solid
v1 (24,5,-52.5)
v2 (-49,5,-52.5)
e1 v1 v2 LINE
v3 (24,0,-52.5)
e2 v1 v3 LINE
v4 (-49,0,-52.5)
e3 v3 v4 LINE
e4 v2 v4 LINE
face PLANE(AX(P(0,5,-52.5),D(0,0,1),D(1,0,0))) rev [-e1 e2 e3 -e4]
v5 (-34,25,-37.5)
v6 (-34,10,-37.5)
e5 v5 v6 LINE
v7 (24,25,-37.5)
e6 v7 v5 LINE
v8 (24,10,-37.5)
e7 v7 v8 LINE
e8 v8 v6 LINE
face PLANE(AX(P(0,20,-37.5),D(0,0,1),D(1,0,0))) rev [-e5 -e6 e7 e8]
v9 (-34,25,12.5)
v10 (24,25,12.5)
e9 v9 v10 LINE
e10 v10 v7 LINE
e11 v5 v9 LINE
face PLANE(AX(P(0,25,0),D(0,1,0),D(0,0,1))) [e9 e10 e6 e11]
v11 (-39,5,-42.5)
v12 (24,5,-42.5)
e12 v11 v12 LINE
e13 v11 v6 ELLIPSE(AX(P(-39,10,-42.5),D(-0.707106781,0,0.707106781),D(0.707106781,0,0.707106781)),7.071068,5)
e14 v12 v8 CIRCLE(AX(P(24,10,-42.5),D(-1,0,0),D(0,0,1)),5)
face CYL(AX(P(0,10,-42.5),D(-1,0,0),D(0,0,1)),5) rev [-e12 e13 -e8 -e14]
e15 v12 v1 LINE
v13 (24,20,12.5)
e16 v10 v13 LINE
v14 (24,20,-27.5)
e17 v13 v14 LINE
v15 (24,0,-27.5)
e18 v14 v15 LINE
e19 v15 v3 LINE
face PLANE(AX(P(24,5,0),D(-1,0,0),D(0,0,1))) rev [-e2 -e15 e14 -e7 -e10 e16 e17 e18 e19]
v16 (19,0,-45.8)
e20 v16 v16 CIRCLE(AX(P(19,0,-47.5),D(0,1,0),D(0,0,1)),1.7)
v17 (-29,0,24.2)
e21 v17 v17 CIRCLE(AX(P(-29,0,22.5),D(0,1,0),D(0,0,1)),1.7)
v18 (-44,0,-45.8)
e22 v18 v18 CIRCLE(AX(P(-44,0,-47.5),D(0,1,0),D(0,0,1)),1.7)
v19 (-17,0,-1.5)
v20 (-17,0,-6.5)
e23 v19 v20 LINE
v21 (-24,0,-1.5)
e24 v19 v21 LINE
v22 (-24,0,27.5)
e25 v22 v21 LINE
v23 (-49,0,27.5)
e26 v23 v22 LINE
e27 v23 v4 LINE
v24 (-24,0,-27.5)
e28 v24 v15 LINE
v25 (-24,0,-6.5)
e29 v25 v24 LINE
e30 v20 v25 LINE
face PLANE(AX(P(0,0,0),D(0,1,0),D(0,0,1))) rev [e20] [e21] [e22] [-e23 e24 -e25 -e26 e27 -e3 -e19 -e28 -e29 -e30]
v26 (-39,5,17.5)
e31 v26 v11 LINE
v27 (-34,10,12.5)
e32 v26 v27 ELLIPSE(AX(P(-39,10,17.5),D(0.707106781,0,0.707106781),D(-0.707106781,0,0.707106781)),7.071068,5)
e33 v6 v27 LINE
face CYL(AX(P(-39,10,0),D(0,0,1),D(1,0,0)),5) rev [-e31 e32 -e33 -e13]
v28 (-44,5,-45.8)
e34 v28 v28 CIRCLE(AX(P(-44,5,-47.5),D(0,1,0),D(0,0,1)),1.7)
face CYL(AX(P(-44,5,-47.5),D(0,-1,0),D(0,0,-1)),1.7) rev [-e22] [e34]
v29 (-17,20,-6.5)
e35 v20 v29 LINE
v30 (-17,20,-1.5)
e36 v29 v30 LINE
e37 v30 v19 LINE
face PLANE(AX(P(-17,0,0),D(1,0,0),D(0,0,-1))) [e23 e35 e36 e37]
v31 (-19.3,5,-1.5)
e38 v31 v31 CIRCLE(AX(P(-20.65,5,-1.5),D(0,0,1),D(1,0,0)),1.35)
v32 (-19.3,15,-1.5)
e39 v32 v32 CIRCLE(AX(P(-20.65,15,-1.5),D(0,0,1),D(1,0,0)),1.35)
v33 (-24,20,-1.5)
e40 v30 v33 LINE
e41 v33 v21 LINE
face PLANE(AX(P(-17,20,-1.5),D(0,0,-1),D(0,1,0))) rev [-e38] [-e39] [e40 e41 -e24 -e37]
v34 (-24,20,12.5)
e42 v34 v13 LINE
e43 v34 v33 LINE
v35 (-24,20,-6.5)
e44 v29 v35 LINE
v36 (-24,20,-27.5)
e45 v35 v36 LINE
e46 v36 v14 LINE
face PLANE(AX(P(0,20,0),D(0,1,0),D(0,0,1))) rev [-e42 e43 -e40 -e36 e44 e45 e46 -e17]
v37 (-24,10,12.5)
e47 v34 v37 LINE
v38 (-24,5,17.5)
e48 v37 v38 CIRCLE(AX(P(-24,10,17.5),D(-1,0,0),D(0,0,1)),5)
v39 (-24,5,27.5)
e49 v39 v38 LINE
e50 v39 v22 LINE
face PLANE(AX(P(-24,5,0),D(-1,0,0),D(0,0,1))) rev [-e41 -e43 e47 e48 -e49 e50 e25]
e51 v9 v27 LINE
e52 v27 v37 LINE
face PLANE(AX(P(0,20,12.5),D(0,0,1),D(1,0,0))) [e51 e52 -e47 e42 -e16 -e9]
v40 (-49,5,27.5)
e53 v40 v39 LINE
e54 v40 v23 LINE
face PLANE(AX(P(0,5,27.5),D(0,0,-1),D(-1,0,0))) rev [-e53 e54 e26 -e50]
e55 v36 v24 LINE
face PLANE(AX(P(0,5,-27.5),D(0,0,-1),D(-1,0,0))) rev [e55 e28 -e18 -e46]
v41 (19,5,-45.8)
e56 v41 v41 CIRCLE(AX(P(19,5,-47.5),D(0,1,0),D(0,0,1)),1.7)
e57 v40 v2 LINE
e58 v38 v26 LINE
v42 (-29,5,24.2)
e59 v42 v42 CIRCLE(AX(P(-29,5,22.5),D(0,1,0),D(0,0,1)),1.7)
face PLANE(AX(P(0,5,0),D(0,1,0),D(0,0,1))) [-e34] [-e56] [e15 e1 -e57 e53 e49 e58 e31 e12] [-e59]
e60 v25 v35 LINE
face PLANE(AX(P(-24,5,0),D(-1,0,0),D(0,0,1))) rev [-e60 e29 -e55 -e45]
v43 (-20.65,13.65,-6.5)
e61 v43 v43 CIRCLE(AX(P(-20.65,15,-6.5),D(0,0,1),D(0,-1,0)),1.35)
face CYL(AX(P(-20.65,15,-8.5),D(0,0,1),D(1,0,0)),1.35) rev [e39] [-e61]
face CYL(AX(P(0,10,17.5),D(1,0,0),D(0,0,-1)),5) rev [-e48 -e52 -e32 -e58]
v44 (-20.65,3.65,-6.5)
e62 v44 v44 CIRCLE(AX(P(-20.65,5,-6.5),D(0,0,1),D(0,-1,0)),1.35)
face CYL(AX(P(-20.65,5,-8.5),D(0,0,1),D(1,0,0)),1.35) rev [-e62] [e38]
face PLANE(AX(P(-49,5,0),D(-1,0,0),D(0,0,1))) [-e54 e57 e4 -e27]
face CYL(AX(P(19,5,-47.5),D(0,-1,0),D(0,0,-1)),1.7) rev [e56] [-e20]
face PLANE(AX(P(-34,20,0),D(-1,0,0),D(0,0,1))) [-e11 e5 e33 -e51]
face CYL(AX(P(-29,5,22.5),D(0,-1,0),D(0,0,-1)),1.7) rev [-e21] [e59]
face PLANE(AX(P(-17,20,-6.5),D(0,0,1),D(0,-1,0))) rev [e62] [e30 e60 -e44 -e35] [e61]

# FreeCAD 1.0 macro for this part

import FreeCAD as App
import Part
import Sketcher
from FreeCAD import Vector
Q = App.Units.Quantity


def edges_at(feature, points):
    """Names of the edges that pass closest to the given points."""
    edges = feature.Shape.Edges
    near = lambda p: min(range(len(edges)), key=lambda i: edges[i].distToShape(Part.Vertex(*p))[0])
    return sorted({f"Edge{near(p) + 1}" for p in points})


def add_polygon(sketch, points):
    """Adds a closed chain of lines whose ends are joined by coincident constraints."""
    first, n = sketch.GeometryCount, len(points)
    for a, b in zip(points, points[1:] + points[:1]):
        sketch.addGeometry(Part.LineSegment(App.Vector(*a, 0), App.Vector(*b, 0)), False)
    for i in range(n):
        sketch.addConstraint(Sketcher.Constraint("Coincident", first + i, 2, first + (i + 1) % n, 1))

doc = App.newDocument("Part")
params = doc.addObject("Spreadsheet::Sheet", "Params")
for row, (alias, value) in enumerate([
    ("sketch1_diameter", "3.4 mm"),
    ("sketch1_width", "25 mm"),
    ("sketch1_width2", "48 mm"),
    ("sketch1_height", "55 mm"),
    ("pad1_length", "5 mm"),
    ("sketch2_width", "58 mm"),
    ("sketch2_width2", "10 mm"),
    ("sketch2_height", "50 mm"),
    ("pad2_length", "15 mm"),
    ("sketch3_width", "58 mm"),
    ("sketch3_height", "50 mm"),
    ("pad3_length", "5 mm"),
    ("sketch4_width", "20 mm"),
    ("sketch4_height", "5 mm"),
    ("pad4_length", "7 mm"),
    ("sketch5_diameter", "2.7 mm"),
    ("pocket1_length", "7 mm"),
    ("fillet_radius", "5 mm"),
], start=1):
    params.set(f"A{row}", alias)
    params.set(f"B{row}", "=" + value)
    params.setAlias(f"B{row}", alias)

body = doc.addObject("PartDesign::Body", "Body")

sketch1 = doc.addObject("Sketcher::SketchObject", "Sketch")
body.addObject(sketch1)
sketch1.AttachmentSupport = (doc.XZ_Plane, [""])
sketch1.MapMode = "FlatFace"
add_polygon(sketch1, [(-49, 27.5), (-24, 27.5), (-24, -27.5), (24, -27.5), (24, -52.5), (-49, -52.5)])
sketch1.addGeometry(Part.Circle(Vector(-29, 22.5, 0), Vector(0, 0, 1), 1.7), False)
sketch1.addGeometry(Part.Circle(Vector(-44, -47.5, 0), Vector(0, 0, 1), 1.7), False)
sketch1.addGeometry(Part.Circle(Vector(19, -47.5, 0), Vector(0, 0, 1), 1.7), False)
sketch1.addConstraint(Sketcher.Constraint("Horizontal", 0))
sketch1.addConstraint(Sketcher.Constraint("Vertical", 1))
sketch1.addConstraint(Sketcher.Constraint("Horizontal", 2))
sketch1.addConstraint(Sketcher.Constraint("Vertical", 3))
sketch1.addConstraint(Sketcher.Constraint("Horizontal", 4))
sketch1.addConstraint(Sketcher.Constraint("Vertical", 5))
sketch1.addConstraint(Sketcher.Constraint("Equal", 6, 7))
sketch1.addConstraint(Sketcher.Constraint("Equal", 7, 8))
sketch1.addConstraint(Sketcher.Constraint("Symmetric", 0, 2, 2, 2, -1, 1))
sketch1.addConstraint(Sketcher.Constraint("Horizontal", 7, 3, 8, 3))
sketch1.addConstraint(Sketcher.Constraint("Equal", 0, 3))
sketch1.addConstraint(Sketcher.Constraint("Diameter", 6, Q("3.4 mm")))
sketch1.addConstraint(Sketcher.Constraint("DistanceX", 0, 1, 0, 2, Q("25 mm")))
sketch1.addConstraint(Sketcher.Constraint("DistanceX", 2, 1, 2, 2, Q("48 mm")))
sketch1.addConstraint(Sketcher.Constraint("DistanceY", 1, 2, 1, 1, Q("55 mm")))
sketch1.addConstraint(Sketcher.Constraint("DistanceX", 6, 3, -1, 1, Q("29 mm")))
sketch1.addConstraint(Sketcher.Constraint("DistanceX", 7, 3, -1, 1, Q("44 mm")))
sketch1.addConstraint(Sketcher.Constraint("DistanceX", -1, 1, 8, 3, Q("19 mm")))
sketch1.addConstraint(Sketcher.Constraint("DistanceY", 7, 3, 6, 3, Q("70 mm")))
sketch1.addConstraint(Sketcher.Constraint("DistanceY", 6, 3, 0, 2, Q("5 mm")))
sketch1.setExpression("Constraints[17]", "Params.sketch1_diameter")
sketch1.setExpression("Constraints[18]", "Params.sketch1_width")
sketch1.setExpression("Constraints[19]", "Params.sketch1_width2")
sketch1.setExpression("Constraints[20]", "Params.sketch1_height")
pad1 = doc.addObject("PartDesign::Pad", "Pad")
body.addObject(pad1)
pad1.Profile = sketch1
pad1.setExpression("Length", "Params.pad1_length")
pad1.Reversed = True

sketch2 = doc.addObject("Sketcher::SketchObject", "Sketch001")
body.addObject(sketch2)
sketch2.AttachmentSupport = (doc.XZ_Plane, [""])
sketch2.MapMode = "FlatFace"
sketch2.AttachmentOffset = App.Placement(Vector(0, 0, -5), App.Rotation())
add_polygon(sketch2, [(24, -28), (24, -38), (-34, -38), (-34, 12), (-24, 12), (-24, -28)])
sketch2.addConstraint(Sketcher.Constraint("Vertical", 0))
sketch2.addConstraint(Sketcher.Constraint("Horizontal", 1))
sketch2.addConstraint(Sketcher.Constraint("Vertical", 2))
sketch2.addConstraint(Sketcher.Constraint("Horizontal", 3))
sketch2.addConstraint(Sketcher.Constraint("Vertical", 4))
sketch2.addConstraint(Sketcher.Constraint("Horizontal", 5))
sketch2.addConstraint(Sketcher.Constraint("Equal", 3, 0))
sketch2.addConstraint(Sketcher.Constraint("DistanceX", 1, 2, 1, 1, Q("58 mm")))
sketch2.addConstraint(Sketcher.Constraint("DistanceX", 3, 1, 3, 2, Q("10 mm")))
sketch2.addConstraint(Sketcher.Constraint("DistanceY", 2, 1, 2, 2, Q("50 mm")))
sketch2.addConstraint(Sketcher.Constraint("DistanceX", -1, 1, 0, 2, Q("24 mm")))
sketch2.addConstraint(Sketcher.Constraint("DistanceY", 0, 2, -1, 1, Q("37.5 mm")))
sketch2.setExpression("Constraints[13]", "Params.sketch2_width")
sketch2.setExpression("Constraints[14]", "Params.sketch2_width2")
sketch2.setExpression("Constraints[15]", "Params.sketch2_height")
pad2 = doc.addObject("PartDesign::Pad", "Pad001")
body.addObject(pad2)
pad2.Profile = sketch2
pad2.setExpression("Length", "Params.pad2_length")
pad2.Reversed = True

sketch3 = doc.addObject("Sketcher::SketchObject", "Sketch002")
body.addObject(sketch3)
sketch3.AttachmentSupport = (doc.XZ_Plane, [""])
sketch3.MapMode = "FlatFace"
sketch3.AttachmentOffset = App.Placement(Vector(0, 0, -20), App.Rotation())
add_polygon(sketch3, [(-34, -38), (-34, 12), (24, 12), (24, -38)])
sketch3.addConstraint(Sketcher.Constraint("Vertical", 0))
sketch3.addConstraint(Sketcher.Constraint("Horizontal", 1))
sketch3.addConstraint(Sketcher.Constraint("Vertical", 2))
sketch3.addConstraint(Sketcher.Constraint("Horizontal", 3))
sketch3.addConstraint(Sketcher.Constraint("DistanceX", 1, 1, 1, 2, Q("58 mm")))
sketch3.addConstraint(Sketcher.Constraint("DistanceY", 0, 1, 0, 2, Q("50 mm")))
sketch3.addConstraint(Sketcher.Constraint("DistanceX", 0, 2, -1, 1, Q("34 mm")))
sketch3.addConstraint(Sketcher.Constraint("DistanceY", -1, 1, 0, 2, Q("12.5 mm")))
sketch3.setExpression("Constraints[8]", "Params.sketch3_width")
sketch3.setExpression("Constraints[9]", "Params.sketch3_height")
pad3 = doc.addObject("PartDesign::Pad", "Pad002")
body.addObject(pad3)
pad3.Profile = sketch3
pad3.setExpression("Length", "Params.pad3_length")
pad3.Reversed = True

sketch4 = doc.addObject("Sketcher::SketchObject", "Sketch003")
body.addObject(sketch4)
sketch4.AttachmentSupport = (doc.YZ_Plane, [""])
sketch4.MapMode = "FlatFace"
sketch4.AttachmentOffset = App.Placement(Vector(0, 0, -24), App.Rotation())
add_polygon(sketch4, [(20, -2), (0, -2), (0, -6), (20, -6)])
sketch4.addConstraint(Sketcher.Constraint("Horizontal", 0))
sketch4.addConstraint(Sketcher.Constraint("Vertical", 1))
sketch4.addConstraint(Sketcher.Constraint("Horizontal", 2))
sketch4.addConstraint(Sketcher.Constraint("Vertical", 3))
sketch4.addConstraint(Sketcher.Constraint("PointOnObject", 0, 2, -2))
sketch4.addConstraint(Sketcher.Constraint("DistanceX", 0, 2, 0, 1, Q("20 mm")))
sketch4.addConstraint(Sketcher.Constraint("DistanceY", 1, 2, 1, 1, Q("5 mm")))
sketch4.addConstraint(Sketcher.Constraint("DistanceY", 0, 2, -1, 1, Q("1.5 mm")))
sketch4.setExpression("Constraints[9]", "Params.sketch4_width")
sketch4.setExpression("Constraints[10]", "Params.sketch4_height")
pad4 = doc.addObject("PartDesign::Pad", "Pad003")
body.addObject(pad4)
pad4.Profile = sketch4
pad4.setExpression("Length", "Params.pad4_length")

sketch5 = doc.addObject("Sketcher::SketchObject", "Sketch004")
body.addObject(sketch5)
sketch5.AttachmentSupport = (doc.XY_Plane, [""])
sketch5.MapMode = "FlatFace"
sketch5.AttachmentOffset = App.Placement(Vector(0, 0, -1.5), App.Rotation())
sketch5.addGeometry(Part.Circle(Vector(-20.6, 5, 0), Vector(0, 0, 1), 1.4), False)
sketch5.addGeometry(Part.Circle(Vector(-20.6, 15, 0), Vector(0, 0, 1), 1.4), False)
sketch5.addConstraint(Sketcher.Constraint("Equal", 0, 1))
sketch5.addConstraint(Sketcher.Constraint("Vertical", 0, 3, 1, 3))
sketch5.addConstraint(Sketcher.Constraint("Diameter", 0, Q("2.7 mm")))
sketch5.addConstraint(Sketcher.Constraint("DistanceY", -1, 1, 0, 3, Q("5 mm")))
sketch5.addConstraint(Sketcher.Constraint("DistanceY", -1, 1, 1, 3, Q("15 mm")))
sketch5.addConstraint(Sketcher.Constraint("DistanceX", 0, 3, -1, 1, Q("20.65 mm")))
sketch5.setExpression("Constraints[2]", "Params.sketch5_diameter")
pocket1 = doc.addObject("PartDesign::Pocket", "Pocket")
body.addObject(pocket1)
pocket1.Profile = sketch5
pocket1.setExpression("Length", "Params.pocket1_length")
doc.recompute()

fillet = doc.addObject("PartDesign::Fillet", "Fillet")
body.addObject(fillet)
fillet.Base = (pocket1, edges_at(pocket1, [(-5, 5, -37.5), (-29, 5, 12.5), (-34, 5, -12.5)]))
fillet.setExpression("Radius", "Params.fillet_radius")

doc.recompute()
